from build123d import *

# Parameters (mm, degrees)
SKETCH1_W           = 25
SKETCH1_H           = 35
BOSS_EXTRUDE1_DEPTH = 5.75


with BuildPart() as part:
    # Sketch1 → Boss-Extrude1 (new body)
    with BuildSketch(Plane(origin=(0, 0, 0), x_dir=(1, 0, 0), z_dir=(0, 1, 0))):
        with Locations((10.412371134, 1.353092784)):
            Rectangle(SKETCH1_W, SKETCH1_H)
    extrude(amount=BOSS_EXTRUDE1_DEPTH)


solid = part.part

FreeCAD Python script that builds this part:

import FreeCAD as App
import Part
import Sketcher

V = App.Vector
Q = App.Units.Quantity


def add_polygon(sketch, points):
    """Adds a closed chain of lines whose ends are joined by coincident constraints."""
    first, n = sketch.GeometryCount, len(points)
    for a, b in zip(points, points[1:] + points[:1]):
        sketch.addGeometry(Part.LineSegment(App.Vector(*a, 0), App.Vector(*b, 0)), False)
    for i in range(n):
        sketch.addConstraint(Sketcher.Constraint("Coincident", first + i, 2, first + (i + 1) % n, 1))

doc = App.newDocument("Part")
body = doc.addObject("PartDesign::Body", "Body")

sketch1 = doc.addObject("Sketcher::SketchObject", "Sketch")
body.addObject(sketch1)
sketch1.AttachmentSupport = (doc.XZ_Plane, [""])
sketch1.MapMode = "FlatFace"
add_polygon(sketch1, [(-2.087629, -18.853093), (-2.087629, 16.146907), (22.912371, 16.146907), (22.912371, -18.853093)])
sketch1.addConstraint(Sketcher.Constraint("Vertical", 0))
sketch1.addConstraint(Sketcher.Constraint("Horizontal", 1))
sketch1.addConstraint(Sketcher.Constraint("Vertical", 2))
sketch1.addConstraint(Sketcher.Constraint("Horizontal", 3))
sketch1.addConstraint(Sketcher.Constraint("DistanceX", 1, 1, 1, 2, Q("25 mm")))
sketch1.addConstraint(Sketcher.Constraint("DistanceY", 0, 1, 0, 2, Q("35 mm")))
sketch1.addConstraint(Sketcher.Constraint("DistanceX", 0, 2, -1, 1, Q("2.087629 mm")))
sketch1.addConstraint(Sketcher.Constraint("DistanceY", -1, 1, 0, 2, Q("16.146907 mm")))
pad1 = doc.addObject("PartDesign::Pad", "Pad")
body.addObject(pad1)
pad1.Profile = sketch1
pad1.Length = 5.75
pad1.Reversed = True

doc.recompute()
